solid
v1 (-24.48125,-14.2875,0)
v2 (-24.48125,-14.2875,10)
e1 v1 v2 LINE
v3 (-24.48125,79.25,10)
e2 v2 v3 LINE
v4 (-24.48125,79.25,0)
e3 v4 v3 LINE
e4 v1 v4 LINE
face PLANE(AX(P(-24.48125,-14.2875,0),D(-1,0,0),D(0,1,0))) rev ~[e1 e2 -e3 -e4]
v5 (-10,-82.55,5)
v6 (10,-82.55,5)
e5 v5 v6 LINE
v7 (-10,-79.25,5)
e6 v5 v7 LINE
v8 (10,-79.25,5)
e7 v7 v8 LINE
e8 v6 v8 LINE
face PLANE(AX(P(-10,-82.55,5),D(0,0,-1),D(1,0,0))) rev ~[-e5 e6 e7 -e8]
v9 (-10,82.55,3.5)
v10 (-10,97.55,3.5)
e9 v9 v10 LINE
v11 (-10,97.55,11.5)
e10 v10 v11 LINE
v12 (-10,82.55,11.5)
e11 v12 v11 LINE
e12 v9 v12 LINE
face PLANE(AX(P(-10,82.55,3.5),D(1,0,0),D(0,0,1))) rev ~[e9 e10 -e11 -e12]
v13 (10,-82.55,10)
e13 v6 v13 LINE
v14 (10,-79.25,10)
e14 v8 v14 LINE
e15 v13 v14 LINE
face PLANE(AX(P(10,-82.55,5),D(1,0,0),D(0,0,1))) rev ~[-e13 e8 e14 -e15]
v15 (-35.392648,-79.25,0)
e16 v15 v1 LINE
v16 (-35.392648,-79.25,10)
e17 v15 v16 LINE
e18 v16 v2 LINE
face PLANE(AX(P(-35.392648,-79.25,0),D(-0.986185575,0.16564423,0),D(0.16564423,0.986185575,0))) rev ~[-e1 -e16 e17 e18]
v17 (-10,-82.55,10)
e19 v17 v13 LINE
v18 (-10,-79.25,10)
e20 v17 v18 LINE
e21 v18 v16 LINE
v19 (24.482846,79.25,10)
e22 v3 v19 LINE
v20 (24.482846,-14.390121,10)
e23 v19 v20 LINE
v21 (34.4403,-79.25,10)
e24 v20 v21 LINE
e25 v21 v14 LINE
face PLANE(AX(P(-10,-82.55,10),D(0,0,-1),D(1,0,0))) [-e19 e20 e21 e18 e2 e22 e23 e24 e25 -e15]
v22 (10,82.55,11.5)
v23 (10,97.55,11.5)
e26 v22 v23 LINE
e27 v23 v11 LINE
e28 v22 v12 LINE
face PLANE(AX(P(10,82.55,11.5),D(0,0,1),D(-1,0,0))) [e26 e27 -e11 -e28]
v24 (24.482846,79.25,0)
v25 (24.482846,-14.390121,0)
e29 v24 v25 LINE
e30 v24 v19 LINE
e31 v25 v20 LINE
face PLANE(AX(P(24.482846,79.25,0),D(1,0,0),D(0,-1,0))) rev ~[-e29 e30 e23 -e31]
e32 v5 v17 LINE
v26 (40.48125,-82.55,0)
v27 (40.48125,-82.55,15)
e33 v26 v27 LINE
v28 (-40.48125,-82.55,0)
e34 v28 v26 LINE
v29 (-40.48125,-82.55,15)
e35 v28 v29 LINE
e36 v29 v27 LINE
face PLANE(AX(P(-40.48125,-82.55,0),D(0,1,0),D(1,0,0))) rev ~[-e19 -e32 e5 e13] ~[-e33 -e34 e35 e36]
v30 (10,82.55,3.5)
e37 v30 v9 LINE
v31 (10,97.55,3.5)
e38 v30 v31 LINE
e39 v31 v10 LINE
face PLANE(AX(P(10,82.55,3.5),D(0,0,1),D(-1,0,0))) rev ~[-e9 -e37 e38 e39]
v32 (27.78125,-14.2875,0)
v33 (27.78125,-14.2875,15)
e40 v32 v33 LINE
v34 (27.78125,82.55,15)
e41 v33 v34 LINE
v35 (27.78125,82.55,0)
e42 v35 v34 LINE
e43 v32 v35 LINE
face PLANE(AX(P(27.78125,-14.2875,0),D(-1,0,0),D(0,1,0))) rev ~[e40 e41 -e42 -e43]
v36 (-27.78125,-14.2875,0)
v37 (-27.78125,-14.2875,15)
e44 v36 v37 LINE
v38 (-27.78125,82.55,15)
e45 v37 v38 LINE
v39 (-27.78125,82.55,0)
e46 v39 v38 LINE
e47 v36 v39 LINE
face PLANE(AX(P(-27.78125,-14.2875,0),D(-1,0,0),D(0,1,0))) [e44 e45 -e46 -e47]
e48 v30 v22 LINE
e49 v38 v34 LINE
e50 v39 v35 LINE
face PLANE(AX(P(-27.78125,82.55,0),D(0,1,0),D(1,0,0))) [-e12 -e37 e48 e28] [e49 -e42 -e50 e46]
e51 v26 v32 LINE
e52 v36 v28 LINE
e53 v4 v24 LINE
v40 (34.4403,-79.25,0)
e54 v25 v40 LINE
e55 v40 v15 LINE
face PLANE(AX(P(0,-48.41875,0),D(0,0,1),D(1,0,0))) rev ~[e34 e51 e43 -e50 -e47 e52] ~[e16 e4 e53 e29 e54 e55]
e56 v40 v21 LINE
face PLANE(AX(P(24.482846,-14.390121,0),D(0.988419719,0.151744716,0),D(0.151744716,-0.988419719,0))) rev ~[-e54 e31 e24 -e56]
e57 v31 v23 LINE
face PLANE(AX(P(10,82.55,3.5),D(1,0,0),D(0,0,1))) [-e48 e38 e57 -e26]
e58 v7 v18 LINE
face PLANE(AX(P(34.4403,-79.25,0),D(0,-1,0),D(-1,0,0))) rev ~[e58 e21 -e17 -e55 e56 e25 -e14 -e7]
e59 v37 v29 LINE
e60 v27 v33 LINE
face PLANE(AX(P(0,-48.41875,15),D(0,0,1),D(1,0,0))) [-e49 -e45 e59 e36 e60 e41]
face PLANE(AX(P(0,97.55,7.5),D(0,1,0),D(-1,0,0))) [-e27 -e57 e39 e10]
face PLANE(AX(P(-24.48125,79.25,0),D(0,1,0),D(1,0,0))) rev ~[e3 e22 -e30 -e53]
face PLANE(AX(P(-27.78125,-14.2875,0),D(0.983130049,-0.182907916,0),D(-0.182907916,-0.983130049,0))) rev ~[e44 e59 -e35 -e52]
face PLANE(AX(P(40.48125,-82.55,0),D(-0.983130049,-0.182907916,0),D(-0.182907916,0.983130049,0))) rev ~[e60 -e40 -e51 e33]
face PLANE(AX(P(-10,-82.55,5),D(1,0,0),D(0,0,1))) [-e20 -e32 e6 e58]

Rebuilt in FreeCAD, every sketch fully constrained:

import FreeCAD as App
import Part
import Sketcher

V = App.Vector


def add_polygon(sketch, points):
    """Adds a closed chain of lines whose ends are joined by coincident constraints."""
    first, n = sketch.GeometryCount, len(points)
    for a, b in zip(points, points[1:] + points[:1]):
        sketch.addGeometry(Part.LineSegment(App.Vector(*a, 0), App.Vector(*b, 0)), False)
    for i in range(n):
        sketch.addConstraint(Sketcher.Constraint("Coincident", first + i, 2, first + (i + 1) % n, 1))

doc = App.newDocument("Part")
body = doc.addObject("PartDesign::Body", "Body")

# Sketch on XY plane
sketch1 = body.newObject("Sketcher::SketchObject", "Sketch")
sketch1.AttachmentSupport = (doc.getObject("XY_Plane"), [""])
sketch1.MapMode = "FlatFace"
add_polygon(sketch1, [(40.48125, -82.55), (27.78125, -14.2875), (27.78125, 82.55), (-27.78125, 82.55), (-27.78125, -14.2875), (-40.48125, -82.55)])  # lines 0-5
sketch1.addConstraint([
    Sketcher.Constraint("Vertical", 1),
    Sketcher.Constraint("Horizontal", 2),
    Sketcher.Constraint("Vertical", 3),
    Sketcher.Constraint("Horizontal", 5),
    Sketcher.Constraint("Symmetric", 0, 2, 3, 2, -2),
    Sketcher.Constraint("Equal", 0, 4),
    Sketcher.Constraint("DistanceX", 4, 2, 3, 2, 12.7),
    Sketcher.Constraint("DistanceY", 4, 2, 2, 2, 165.1),
    Sketcher.Constraint("DistanceY", -1, 1, 1, 2, 82.55),
    Sketcher.Constraint("DistanceX", 2, 2, 2, 1, 55.5625),
    Sketcher.Constraint("DistanceY", 1, 1, 1, 2, 96.8375),
])
pad1 = body.newObject("PartDesign::Pad", "Pad")
pad1.Profile = sketch1
pad1.Length = 15

# Sketch on XY plane
sketch2 = body.newObject("Sketcher::SketchObject", "Sketch001")
sketch2.AttachmentSupport = (doc.getObject("XY_Plane"), [""])
sketch2.MapMode = "FlatFace"
add_polygon(sketch2, [(34.4403, -79.25), (-35.392648, -79.25), (-24.48125, -14.2875), (-24.48125, 79.25), (24.482846, 79.25), (24.482846, -14.390121)])  # lines 0-5
sketch2.addConstraint([
    Sketcher.Constraint("Horizontal", 0),
    Sketcher.Constraint("Vertical", 2),
    Sketcher.Constraint("Horizontal", 3),
    Sketcher.Constraint("Vertical", 4),
    Sketcher.Constraint("DistanceY", 0, 2, 2, 2, 158.5),
    Sketcher.Constraint("DistanceY", 0, 2, -1, 1, 79.25),
    Sketcher.Constraint("DistanceY", 2, 1, 2, 2, 93.5375),
    Sketcher.Constraint("DistanceX", 0, 2, 0, 1, 69.832948),
    Sketcher.Constraint("DistanceY", 4, 2, 4, 1, 93.640121),
    Sketcher.Constraint("DistanceX", -1, 1, 5, 2, 34.4403),
    Sketcher.Constraint("DistanceX", 0, 2, 1, 2, 10.911398),
    Sketcher.Constraint("DistanceX", 3, 1, 3, 2, 48.964096),
])
pocket1 = body.newObject("PartDesign::Pocket", "Pocket")
pocket1.Profile = sketch2
pocket1.Length = 10
pocket1.Reversed = True

# Sketch on XZ plane
sketch3 = body.newObject("Sketcher::SketchObject", "Sketch002")
sketch3.AttachmentSupport = (doc.getObject("XZ_Plane"), [""])
sketch3.MapMode = "FlatFace"
sketch3.AttachmentOffset = App.Placement(V(0, 0, 82.55), App.Rotation())
add_polygon(sketch3, [(-10, 10), (-10, 5), (10, 5), (10, 10)])  # lines 0-3
sketch3.addConstraint([
    Sketcher.Constraint("Vertical", 0),
    Sketcher.Constraint("Horizontal", 1),
    Sketcher.Constraint("Vertical", 2),
    Sketcher.Constraint("Horizontal", 3),
    Sketcher.Constraint("DistanceX", 1, 1, 1, 2, 20.0),
    Sketcher.Constraint("DistanceY", 0, 2, 0, 1, 5.0),
    Sketcher.Constraint("DistanceX", 0, 2, -1, 1, 10.0),
    Sketcher.Constraint("DistanceY", -1, 1, 0, 2, 5.0),
])
pocket2 = body.newObject("PartDesign::Pocket", "Pocket001")
pocket2.Profile = sketch3
pocket2.Length = 25

# Sketch on XZ plane
sketch4 = body.newObject("Sketcher::SketchObject", "Sketch003")
sketch4.AttachmentSupport = (doc.getObject("XZ_Plane"), [""])
sketch4.MapMode = "FlatFace"
sketch4.AttachmentOffset = App.Placement(V(0, 0, -82.55), App.Rotation())
add_polygon(sketch4, [(10, 11.5), (10, 3.5), (-10, 3.5), (-10, 11.5)])  # lines 0-3
sketch4.addConstraint([
    Sketcher.Constraint("Vertical", 0),
    Sketcher.Constraint("Horizontal", 1),
    Sketcher.Constraint("Vertical", 2),
    Sketcher.Constraint("Horizontal", 3),
    Sketcher.Constraint("DistanceX", 1, 2, 1, 1, 20.0),
    Sketcher.Constraint("DistanceY", 0, 2, 0, 1, 8.0),
    Sketcher.Constraint("DistanceX", -1, 1, 0, 2, 10.0),
    Sketcher.Constraint("DistanceY", -1, 1, 0, 2, 3.5),
])
pad2 = body.newObject("PartDesign::Pad", "Pad001")
pad2.Profile = sketch4
pad2.Length = 15
pad2.Reversed = True

doc.recompute()
